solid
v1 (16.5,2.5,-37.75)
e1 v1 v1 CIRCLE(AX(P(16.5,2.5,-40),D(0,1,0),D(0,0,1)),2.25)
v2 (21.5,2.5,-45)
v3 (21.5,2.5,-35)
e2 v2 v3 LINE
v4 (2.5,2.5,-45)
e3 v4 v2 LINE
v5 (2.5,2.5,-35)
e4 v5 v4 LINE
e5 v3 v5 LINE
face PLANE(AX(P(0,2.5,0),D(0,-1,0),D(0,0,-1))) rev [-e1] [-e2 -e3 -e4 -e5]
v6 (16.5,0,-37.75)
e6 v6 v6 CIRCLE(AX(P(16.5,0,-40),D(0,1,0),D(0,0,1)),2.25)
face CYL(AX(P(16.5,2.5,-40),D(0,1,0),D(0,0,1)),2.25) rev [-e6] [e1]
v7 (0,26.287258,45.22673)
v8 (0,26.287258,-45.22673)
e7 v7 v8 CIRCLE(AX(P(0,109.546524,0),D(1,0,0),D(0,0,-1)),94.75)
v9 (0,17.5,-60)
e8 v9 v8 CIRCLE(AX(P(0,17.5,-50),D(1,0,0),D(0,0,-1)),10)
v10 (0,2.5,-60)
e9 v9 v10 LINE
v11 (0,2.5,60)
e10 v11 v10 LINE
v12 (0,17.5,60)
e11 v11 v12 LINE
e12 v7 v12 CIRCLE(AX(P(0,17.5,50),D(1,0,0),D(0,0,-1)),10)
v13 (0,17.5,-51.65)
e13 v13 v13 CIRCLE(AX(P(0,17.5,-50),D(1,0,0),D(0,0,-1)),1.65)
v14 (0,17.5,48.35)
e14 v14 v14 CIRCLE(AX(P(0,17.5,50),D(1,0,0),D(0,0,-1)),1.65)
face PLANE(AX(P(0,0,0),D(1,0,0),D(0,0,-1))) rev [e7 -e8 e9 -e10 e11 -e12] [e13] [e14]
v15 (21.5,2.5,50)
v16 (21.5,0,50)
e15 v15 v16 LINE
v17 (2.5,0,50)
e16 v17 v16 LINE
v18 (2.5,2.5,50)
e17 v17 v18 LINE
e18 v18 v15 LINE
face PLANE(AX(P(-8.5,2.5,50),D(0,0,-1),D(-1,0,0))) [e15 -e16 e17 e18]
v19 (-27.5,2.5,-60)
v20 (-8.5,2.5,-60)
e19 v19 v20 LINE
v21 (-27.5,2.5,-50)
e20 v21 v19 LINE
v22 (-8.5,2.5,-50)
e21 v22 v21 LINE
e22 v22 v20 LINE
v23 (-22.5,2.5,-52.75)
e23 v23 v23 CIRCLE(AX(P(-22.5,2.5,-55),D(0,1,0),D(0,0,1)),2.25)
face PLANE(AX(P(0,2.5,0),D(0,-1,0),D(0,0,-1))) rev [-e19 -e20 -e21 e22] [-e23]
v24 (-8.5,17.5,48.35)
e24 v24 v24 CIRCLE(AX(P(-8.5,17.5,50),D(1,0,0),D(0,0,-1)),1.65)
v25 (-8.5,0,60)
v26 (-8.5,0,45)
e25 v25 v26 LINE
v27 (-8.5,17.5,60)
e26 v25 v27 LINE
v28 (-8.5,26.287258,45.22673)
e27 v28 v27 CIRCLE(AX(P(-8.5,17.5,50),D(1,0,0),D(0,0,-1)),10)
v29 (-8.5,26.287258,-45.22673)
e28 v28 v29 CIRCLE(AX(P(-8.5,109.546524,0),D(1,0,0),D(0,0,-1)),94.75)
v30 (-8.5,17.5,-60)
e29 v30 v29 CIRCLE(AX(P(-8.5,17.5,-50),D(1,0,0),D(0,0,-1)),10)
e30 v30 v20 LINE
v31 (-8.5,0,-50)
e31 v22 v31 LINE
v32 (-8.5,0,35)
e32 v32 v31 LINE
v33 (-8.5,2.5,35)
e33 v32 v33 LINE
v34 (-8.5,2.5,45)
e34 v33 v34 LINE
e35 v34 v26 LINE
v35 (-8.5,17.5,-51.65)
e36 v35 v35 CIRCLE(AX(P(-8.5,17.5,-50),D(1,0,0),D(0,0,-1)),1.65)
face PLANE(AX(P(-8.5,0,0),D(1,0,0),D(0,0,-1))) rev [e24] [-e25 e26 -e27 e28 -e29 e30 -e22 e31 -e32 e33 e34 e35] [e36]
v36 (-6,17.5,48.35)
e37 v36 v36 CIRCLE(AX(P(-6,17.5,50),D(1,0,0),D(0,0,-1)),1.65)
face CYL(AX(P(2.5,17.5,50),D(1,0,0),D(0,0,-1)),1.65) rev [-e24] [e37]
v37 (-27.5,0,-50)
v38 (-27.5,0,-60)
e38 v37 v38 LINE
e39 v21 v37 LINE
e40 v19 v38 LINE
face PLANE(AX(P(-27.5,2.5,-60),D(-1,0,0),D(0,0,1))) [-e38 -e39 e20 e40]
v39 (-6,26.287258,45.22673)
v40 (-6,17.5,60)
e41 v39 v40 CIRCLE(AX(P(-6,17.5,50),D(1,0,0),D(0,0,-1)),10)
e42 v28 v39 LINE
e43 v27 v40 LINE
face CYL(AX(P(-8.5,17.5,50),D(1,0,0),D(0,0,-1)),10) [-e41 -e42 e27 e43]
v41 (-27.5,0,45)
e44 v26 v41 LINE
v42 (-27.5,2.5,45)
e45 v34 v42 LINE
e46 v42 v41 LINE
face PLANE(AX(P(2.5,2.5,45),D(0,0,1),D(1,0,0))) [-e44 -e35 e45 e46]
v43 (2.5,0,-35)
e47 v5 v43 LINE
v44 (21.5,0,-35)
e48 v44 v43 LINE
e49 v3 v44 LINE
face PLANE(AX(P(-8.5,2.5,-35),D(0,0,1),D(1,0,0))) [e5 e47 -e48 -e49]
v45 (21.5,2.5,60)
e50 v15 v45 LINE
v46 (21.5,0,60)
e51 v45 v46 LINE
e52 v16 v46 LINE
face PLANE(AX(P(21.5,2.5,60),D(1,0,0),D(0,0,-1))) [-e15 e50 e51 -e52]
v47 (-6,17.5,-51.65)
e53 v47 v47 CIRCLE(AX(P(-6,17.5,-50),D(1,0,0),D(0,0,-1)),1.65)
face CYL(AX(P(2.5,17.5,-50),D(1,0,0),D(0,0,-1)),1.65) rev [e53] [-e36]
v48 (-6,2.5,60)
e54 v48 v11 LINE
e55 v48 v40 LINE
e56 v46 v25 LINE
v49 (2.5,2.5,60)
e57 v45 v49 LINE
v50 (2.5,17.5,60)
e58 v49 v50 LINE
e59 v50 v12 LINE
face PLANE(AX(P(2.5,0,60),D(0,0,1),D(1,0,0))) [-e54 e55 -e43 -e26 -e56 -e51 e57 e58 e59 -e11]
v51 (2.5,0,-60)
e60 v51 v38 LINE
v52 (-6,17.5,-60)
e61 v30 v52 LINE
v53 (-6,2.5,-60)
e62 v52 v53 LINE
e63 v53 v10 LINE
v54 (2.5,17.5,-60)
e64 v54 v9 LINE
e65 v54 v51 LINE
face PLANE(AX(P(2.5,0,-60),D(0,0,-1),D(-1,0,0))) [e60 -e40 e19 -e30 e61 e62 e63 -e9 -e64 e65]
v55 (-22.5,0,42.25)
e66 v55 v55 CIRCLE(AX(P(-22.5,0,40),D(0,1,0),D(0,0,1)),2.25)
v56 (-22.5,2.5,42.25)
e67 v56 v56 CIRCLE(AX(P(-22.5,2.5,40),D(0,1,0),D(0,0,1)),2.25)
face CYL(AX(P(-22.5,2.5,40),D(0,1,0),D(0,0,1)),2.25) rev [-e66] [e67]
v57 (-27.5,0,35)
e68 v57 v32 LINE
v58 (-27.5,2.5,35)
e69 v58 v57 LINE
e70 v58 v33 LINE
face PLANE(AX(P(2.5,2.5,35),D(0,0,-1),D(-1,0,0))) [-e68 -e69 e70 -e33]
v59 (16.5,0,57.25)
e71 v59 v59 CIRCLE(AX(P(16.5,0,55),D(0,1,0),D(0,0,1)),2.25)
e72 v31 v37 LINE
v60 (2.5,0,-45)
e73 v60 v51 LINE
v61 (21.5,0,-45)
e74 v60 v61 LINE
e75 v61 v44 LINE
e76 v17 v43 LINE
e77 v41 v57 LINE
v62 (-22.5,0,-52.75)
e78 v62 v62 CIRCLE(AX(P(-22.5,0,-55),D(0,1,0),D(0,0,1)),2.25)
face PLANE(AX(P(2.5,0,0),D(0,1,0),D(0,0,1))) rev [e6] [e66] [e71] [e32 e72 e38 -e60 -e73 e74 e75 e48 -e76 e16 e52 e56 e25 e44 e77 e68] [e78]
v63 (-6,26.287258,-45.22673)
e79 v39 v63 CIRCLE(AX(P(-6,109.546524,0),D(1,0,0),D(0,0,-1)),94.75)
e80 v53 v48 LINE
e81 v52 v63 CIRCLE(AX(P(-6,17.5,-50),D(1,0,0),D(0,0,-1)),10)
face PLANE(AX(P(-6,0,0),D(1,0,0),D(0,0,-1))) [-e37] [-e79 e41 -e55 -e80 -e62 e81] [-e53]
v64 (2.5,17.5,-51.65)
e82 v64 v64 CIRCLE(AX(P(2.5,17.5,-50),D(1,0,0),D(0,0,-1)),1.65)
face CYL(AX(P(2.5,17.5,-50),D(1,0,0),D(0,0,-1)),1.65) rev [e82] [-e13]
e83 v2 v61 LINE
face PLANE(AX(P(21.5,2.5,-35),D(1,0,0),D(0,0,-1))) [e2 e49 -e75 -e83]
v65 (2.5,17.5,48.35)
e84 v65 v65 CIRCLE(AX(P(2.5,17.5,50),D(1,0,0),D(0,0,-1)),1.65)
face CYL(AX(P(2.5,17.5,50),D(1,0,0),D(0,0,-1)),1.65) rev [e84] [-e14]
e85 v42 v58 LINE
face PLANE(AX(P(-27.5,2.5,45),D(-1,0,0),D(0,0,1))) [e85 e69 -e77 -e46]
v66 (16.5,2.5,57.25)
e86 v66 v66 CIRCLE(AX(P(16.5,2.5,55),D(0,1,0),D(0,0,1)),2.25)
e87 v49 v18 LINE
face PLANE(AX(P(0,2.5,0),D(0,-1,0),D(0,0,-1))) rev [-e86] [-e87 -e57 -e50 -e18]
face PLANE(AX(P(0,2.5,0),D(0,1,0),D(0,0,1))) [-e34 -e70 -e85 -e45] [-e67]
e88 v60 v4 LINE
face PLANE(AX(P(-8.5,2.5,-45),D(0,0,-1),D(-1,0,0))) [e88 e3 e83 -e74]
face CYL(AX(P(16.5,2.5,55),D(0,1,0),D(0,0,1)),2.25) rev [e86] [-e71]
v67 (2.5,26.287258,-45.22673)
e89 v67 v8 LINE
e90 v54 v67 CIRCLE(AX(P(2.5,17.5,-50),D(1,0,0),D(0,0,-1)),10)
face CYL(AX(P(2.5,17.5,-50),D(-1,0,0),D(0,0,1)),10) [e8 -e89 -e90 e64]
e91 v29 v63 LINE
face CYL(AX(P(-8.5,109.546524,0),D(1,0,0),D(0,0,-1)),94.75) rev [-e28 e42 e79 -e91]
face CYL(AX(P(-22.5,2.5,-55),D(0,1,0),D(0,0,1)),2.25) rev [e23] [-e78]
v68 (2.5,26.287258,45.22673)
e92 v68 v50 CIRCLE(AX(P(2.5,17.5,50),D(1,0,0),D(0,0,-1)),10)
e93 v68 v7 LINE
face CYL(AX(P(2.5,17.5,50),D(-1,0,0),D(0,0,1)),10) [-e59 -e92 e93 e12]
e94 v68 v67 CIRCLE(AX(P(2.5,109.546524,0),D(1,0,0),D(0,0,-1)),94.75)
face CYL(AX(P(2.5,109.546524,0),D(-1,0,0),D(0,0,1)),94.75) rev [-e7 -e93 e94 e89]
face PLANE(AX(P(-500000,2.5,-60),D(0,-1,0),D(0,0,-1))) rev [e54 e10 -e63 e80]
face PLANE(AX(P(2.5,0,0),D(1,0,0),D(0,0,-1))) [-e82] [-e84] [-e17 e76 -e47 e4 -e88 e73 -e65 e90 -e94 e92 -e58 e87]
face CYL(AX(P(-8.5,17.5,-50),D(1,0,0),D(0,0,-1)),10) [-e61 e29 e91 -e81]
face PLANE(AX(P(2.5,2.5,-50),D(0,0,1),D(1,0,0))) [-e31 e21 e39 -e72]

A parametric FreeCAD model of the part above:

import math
import FreeCAD as App
import Part
import Sketcher
Q = App.Units.Quantity

doc = App.newDocument("Part")
body = doc.addObject("PartDesign::Body", "Body")

sketch1 = body.newObject("Sketcher::SketchObject", "Sketch")
sketch1.AttachmentSupport = (doc.getObject("YZ_Plane"), [""])
sketch1.MapMode = "FlatFace"
sketch1.addGeometry([
    Part.LineSegment(App.Vector(18, 60, 0), App.Vector(0, 60, 0)),
    Part.LineSegment(App.Vector(0, 60, 0), App.Vector(0, -60, 0)),
    Part.LineSegment(App.Vector(0, -60, 0), App.Vector(18, -60, 0)),
    Part.ArcOfCircle(Part.Circle(App.Vector(18, -50, 0), App.Vector(0, 0, 1), 10), math.radians(-90), math.radians(29)),
    Part.ArcOfCircle(Part.Circle(App.Vector(110, 0, 0), App.Vector(0, 0, 1), 95), math.radians(151), math.radians(209)),
    Part.ArcOfCircle(Part.Circle(App.Vector(18, 50, 0), App.Vector(0, 0, 1), 10), math.radians(-29), math.radians(90)),
], False)
sketch1.addConstraint([
    Sketcher.Constraint("Coincident", 0, 2, 1, 1),
    Sketcher.Constraint("Coincident", 1, 2, 2, 1),
    Sketcher.Constraint("Tangent", 2, 2, 3, 1),
    Sketcher.Constraint("Tangent", 3, 2, 4, 2),
    Sketcher.Constraint("Tangent", 4, 1, 5, 1),
    Sketcher.Constraint("Tangent", 5, 2, 0, 1),
    Sketcher.Constraint("Horizontal", 0),
    Sketcher.Constraint("Vertical", 1),
    Sketcher.Constraint("Horizontal", 2),
    Sketcher.Constraint("Equal", 3, 5),
    Sketcher.Constraint("Symmetric", 0, 2, 1, 2, -1, 1),
    Sketcher.Constraint("PointOnObject", 4, 3, -1),
    Sketcher.Constraint("Radius", 3, Q("10 mm")),
    Sketcher.Constraint("DistanceY", 1, 2, 1, 1, Q("120 mm")),
    Sketcher.Constraint("Radius", 4, Q("94.75 mm")),
    Sketcher.Constraint("DistanceX", 0, 2, 0, 1, Q("17.5 mm")),
])
pad1 = body.newObject("PartDesign::Pad", "Pad")
pad1.Profile = sketch1
pad1.Length = 2.5
body2 = doc.addObject("PartDesign::Body", "Body001")

sketch2 = body2.newObject("Sketcher::SketchObject", "Sketch001")
sketch2.AttachmentSupport = (doc.getObject("YZ_Plane001"), [""])
sketch2.MapMode = "FlatFace"
sketch2.AttachmentOffset = App.Placement(App.Vector(0, 0, -6), App.Rotation())
sketch2.addGeometry([
    Part.LineSegment(App.Vector(18, 60, 0), App.Vector(0, 60, 0)),
    Part.LineSegment(App.Vector(0, 60, 0), App.Vector(0, -60, 0)),
    Part.LineSegment(App.Vector(0, -60, 0), App.Vector(18, -60, 0)),
    Part.ArcOfCircle(Part.Circle(App.Vector(18, -50, 0), App.Vector(0, 0, 1), 10), math.radians(-90), math.radians(29)),
    Part.ArcOfCircle(Part.Circle(App.Vector(110, 0, 0), App.Vector(0, 0, 1), 95), math.radians(151), math.radians(209)),
    Part.ArcOfCircle(Part.Circle(App.Vector(18, 50, 0), App.Vector(0, 0, 1), 10), math.radians(-29), math.radians(90)),
], False)
sketch2.addConstraint([
    Sketcher.Constraint("Coincident", 0, 2, 1, 1),
    Sketcher.Constraint("Coincident", 1, 2, 2, 1),
    Sketcher.Constraint("Tangent", 2, 2, 3, 1),
    Sketcher.Constraint("Tangent", 3, 2, 4, 2),
    Sketcher.Constraint("Tangent", 4, 1, 5, 1),
    Sketcher.Constraint("Tangent", 5, 2, 0, 1),
    Sketcher.Constraint("Horizontal", 0),
    Sketcher.Constraint("Vertical", 1),
    Sketcher.Constraint("Horizontal", 2),
    Sketcher.Constraint("Equal", 3, 5),
    Sketcher.Constraint("Symmetric", 0, 2, 1, 2, -1, 1),
    Sketcher.Constraint("PointOnObject", 4, 3, -1),
    Sketcher.Constraint("Radius", 3, Q("10 mm")),
    Sketcher.Constraint("DistanceY", 1, 2, 1, 1, Q("120 mm")),
    Sketcher.Constraint("Radius", 4, Q("94.75 mm")),
    Sketcher.Constraint("DistanceX", 0, 2, 0, 1, Q("17.5 mm")),
])
pad2 = body2.newObject("PartDesign::Pad", "Pad001")
pad2.Profile = sketch2
pad2.Length = 2.5
pad2.Reversed = True
body.AllowCompound = True
doc.recompute()

boolean = body.newObject("PartDesign::Boolean", "Boolean")
boolean.Type = "Fuse"
boolean.addObjects([body2])

sketch3 = body.newObject("Sketcher::SketchObject", "Sketch002")
sketch3.AttachmentSupport = (doc.getObject("YZ_Plane"), [""])
sketch3.MapMode = "FlatFace"
sketch3.addGeometry([
    Part.LineSegment(App.Vector(2.5, -60, 0), App.Vector(0, -60, 0)),
    Part.LineSegment(App.Vector(0, -60, 0), App.Vector(0, 60, 0)),
    Part.LineSegment(App.Vector(0, 60, 0), App.Vector(2.5, 60, 0)),
    Part.LineSegment(App.Vector(2.5, 60, 0), App.Vector(2.5, -60, 0)),
], False)
sketch3.addConstraint([
    Sketcher.Constraint("Coincident", 0, 2, 1, 1),
    Sketcher.Constraint("Coincident", 1, 2, 2, 1),
    Sketcher.Constraint("Coincident", 2, 2, 3, 1),
    Sketcher.Constraint("Coincident", 3, 2, 0, 1),
    Sketcher.Constraint("Horizontal", 0),
    Sketcher.Constraint("Vertical", 1),
    Sketcher.Constraint("Horizontal", 2),
    Sketcher.Constraint("Vertical", 3),
    Sketcher.Constraint("Symmetric", 0, 2, 1, 2, -1, 1),
    Sketcher.Constraint("DistanceY", 1, 1, 1, 2, Q("120 mm")),
    Sketcher.Constraint("DistanceX", 0, 2, 0, 1, Q("2.5 mm")),
])
pad3 = body.newObject("PartDesign::Pad", "Pad002")
pad3.Profile = sketch3
pad3.Length = 8.5
pad3.Reversed = True

sketch4 = body.newObject("Sketcher::SketchObject", "Sketch003")
sketch4.AttachmentSupport = (doc.getObject("YZ_Plane"), [""])
sketch4.MapMode = "FlatFace"
sketch4.AttachmentOffset = App.Placement(App.Vector(0, 0, 2.5), App.Rotation())
sketch4.addGeometry([
    Part.Circle(App.Vector(17.5, -50, 0), App.Vector(0, 0, 1), 1.6),
    Part.Circle(App.Vector(17.5, 50, 0), App.Vector(0, 0, 1), 1.6),
], False)
sketch4.addConstraint([
    Sketcher.Constraint("Equal", 0, 1),
    Sketcher.Constraint("Symmetric", 0, 3, 1, 3, -1),
    Sketcher.Constraint("Diameter", 0, Q("3.3 mm")),
    Sketcher.Constraint("DistanceY", 0, 3, -1, 1, Q("50 mm")),
    Sketcher.Constraint("DistanceX", -1, 1, 0, 3, Q("17.5 mm")),
])
doc.recompute()
hole = body.newObject("PartDesign::Hole", "Hole")
hole.Profile = sketch4
hole.ThreadType = "None"
hole.Diameter = 3.3
hole.DepthType = "ThroughAll"

sketch5 = body.newObject("Sketcher::SketchObject", "Sketch004")
sketch5.AttachmentSupport = (doc.getObject("XZ_Plane"), [""])
sketch5.MapMode = "FlatFace"
sketch5.addGeometry([
    Part.LineSegment(App.Vector(-28, 45, 0), App.Vector(-28, 35, 0)),
    Part.LineSegment(App.Vector(-28, 35, 0), App.Vector(2, 35, 0)),
    Part.LineSegment(App.Vector(2, 35, 0), App.Vector(2, 45, 0)),
    Part.LineSegment(App.Vector(2, 45, 0), App.Vector(-28, 45, 0)),
    Part.LineSegment(App.Vector(-28, -50, 0), App.Vector(-28, -60, 0)),
    Part.LineSegment(App.Vector(-28, -60, 0), App.Vector(2, -60, 0)),
    Part.LineSegment(App.Vector(2, -60, 0), App.Vector(2, -50, 0)),
    Part.LineSegment(App.Vector(2, -50, 0), App.Vector(-28, -50, 0)),
    Part.LineSegment(App.Vector(-8, 60, 0), App.Vector(-8, 50, 0)),
    Part.LineSegment(App.Vector(-8, 50, 0), App.Vector(22, 50, 0)),
    Part.LineSegment(App.Vector(22, 50, 0), App.Vector(22, 60, 0)),
    Part.LineSegment(App.Vector(22, 60, 0), App.Vector(-8, 60, 0)),
    Part.LineSegment(App.Vector(-8, -35, 0), App.Vector(-8, -45, 0)),
    Part.LineSegment(App.Vector(-8, -45, 0), App.Vector(22, -45, 0)),
    Part.LineSegment(App.Vector(22, -45, 0), App.Vector(22, -35, 0)),
    Part.LineSegment(App.Vector(22, -35, 0), App.Vector(-8, -35, 0)),
], False)
sketch5.addConstraint([
    Sketcher.Constraint("Coincident", 0, 2, 1, 1),
    Sketcher.Constraint("Coincident", 1, 2, 2, 1),
    Sketcher.Constraint("Coincident", 2, 2, 3, 1),
    Sketcher.Constraint("Coincident", 3, 2, 0, 1),
    Sketcher.Constraint("Coincident", 4, 2, 5, 1),
    Sketcher.Constraint("Coincident", 5, 2, 6, 1),
    Sketcher.Constraint("Coincident", 6, 2, 7, 1),
    Sketcher.Constraint("Coincident", 7, 2, 4, 1),
    Sketcher.Constraint("Coincident", 8, 2, 9, 1),
    Sketcher.Constraint("Coincident", 9, 2, 10, 1),
    Sketcher.Constraint("Coincident", 10, 2, 11, 1),
    Sketcher.Constraint("Coincident", 11, 2, 8, 1),
    Sketcher.Constraint("Coincident", 12, 2, 13, 1),
    Sketcher.Constraint("Coincident", 13, 2, 14, 1),
    Sketcher.Constraint("Coincident", 14, 2, 15, 1),
    Sketcher.Constraint("Coincident", 15, 2, 12, 1),
    Sketcher.Constraint("Vertical", 0),
    Sketcher.Constraint("Horizontal", 1),
    Sketcher.Constraint("Vertical", 2),
    Sketcher.Constraint("Horizontal", 3),
    Sketcher.Constraint("Vertical", 4),
    Sketcher.Constraint("Horizontal", 5),
    Sketcher.Constraint("Vertical", 6),
    Sketcher.Constraint("Horizontal", 7),
    Sketcher.Constraint("Vertical", 8),
    Sketcher.Constraint("Horizontal", 9),
    Sketcher.Constraint("Vertical", 10),
    Sketcher.Constraint("Horizontal", 11),
    Sketcher.Constraint("Vertical", 12),
    Sketcher.Constraint("Horizontal", 13),
    Sketcher.Constraint("Vertical", 14),
    Sketcher.Constraint("Horizontal", 15),
    Sketcher.Constraint("Vertical", 3, 2, 4, 2),
    Sketcher.Constraint("Vertical", 2, 2, 5, 2),
    Sketcher.Constraint("Vertical", 11, 2, 12, 2),
    Sketcher.Constraint("Vertical", 10, 2, 13, 2),
    Sketcher.Constraint("Equal", 7, 9),
    Sketcher.Constraint("Equal", 2, 4),
    Sketcher.Constraint("Equal", 6, 8),
    Sketcher.Constraint("Equal", 10, 12),
    Sketcher.Constraint("DistanceX", 1, 1, 1, 2, Q("30 mm")),
    Sketcher.Constraint("DistanceY", 0, 2, 0, 1, Q("10 mm")),
    Sketcher.Constraint("DistanceY", -1, 1, 0, 2, Q("35 mm")),
    Sketcher.Constraint("DistanceY", 4, 2, -1, 1, Q("60 mm")),
    Sketcher.Constraint("DistanceY", -1, 1, 8, 2, Q("50 mm")),
    Sketcher.Constraint("DistanceY", 12, 2, -1, 1, Q("45 mm")),
    Sketcher.Constraint("DistanceX", 8, 2, 2, 2, Q("11 mm")),
    Sketcher.Constraint("DistanceX", 0, 2, -1, 1, Q("27.5 mm")),
])
pad4 = body.newObject("PartDesign::Pad", "Pad003")
pad4.Profile = sketch5
pad4.Length = 2.5
pad4.Reversed = True

sketch6 = body.newObject("Sketcher::SketchObject", "Sketch005")
sketch6.AttachmentSupport = (doc.getObject("XZ_Plane"), [""])
sketch6.MapMode = "FlatFace"
sketch6.AttachmentOffset = App.Placement(App.Vector(0, 0, -2.5), App.Rotation())
sketch6.addGeometry([
    Part.Circle(App.Vector(-22.5, -55, 0), App.Vector(0, 0, 1), 2.2),
    Part.Circle(App.Vector(16.5, -40, 0), App.Vector(0, 0, 1), 2.2),
    Part.Circle(App.Vector(16.5, 55, 0), App.Vector(0, 0, 1), 2.2),
    Part.Circle(App.Vector(-22.5, 40, 0), App.Vector(0, 0, 1), 2.2),
], False)
sketch6.addConstraint([
    Sketcher.Constraint("Equal", 0, 1),
    Sketcher.Constraint("Equal", 1, 2),
    Sketcher.Constraint("Equal", 2, 3),
    Sketcher.Constraint("Vertical", 1, 3, 2, 3),
    Sketcher.Constraint("Vertical", 0, 3, 3, 3),
    Sketcher.Constraint("Diameter", 0, Q("4.5 mm")),
    Sketcher.Constraint("DistanceY", 0, 3, -1, 1, Q("55 mm")),
    Sketcher.Constraint("DistanceY", 1, 3, -1, 1, Q("40 mm")),
    Sketcher.Constraint("DistanceY", -1, 1, 2, 3, Q("55 mm")),
    Sketcher.Constraint("DistanceY", -1, 1, 3, 3, Q("40 mm")),
    Sketcher.Constraint("DistanceX", 0, 3, 1, 3, Q("39 mm")),
    Sketcher.Constraint("DistanceX", 0, 3, -1, 1, Q("22.5 mm")),
])
doc.recompute()
hole2 = body.newObject("PartDesign::Hole", "Hole001")
hole2.Profile = sketch6
hole2.ThreadType = "None"
hole2.Diameter = 4.5
hole2.DepthType = "ThroughAll"
hole2.Reversed = True

doc.recompute()
